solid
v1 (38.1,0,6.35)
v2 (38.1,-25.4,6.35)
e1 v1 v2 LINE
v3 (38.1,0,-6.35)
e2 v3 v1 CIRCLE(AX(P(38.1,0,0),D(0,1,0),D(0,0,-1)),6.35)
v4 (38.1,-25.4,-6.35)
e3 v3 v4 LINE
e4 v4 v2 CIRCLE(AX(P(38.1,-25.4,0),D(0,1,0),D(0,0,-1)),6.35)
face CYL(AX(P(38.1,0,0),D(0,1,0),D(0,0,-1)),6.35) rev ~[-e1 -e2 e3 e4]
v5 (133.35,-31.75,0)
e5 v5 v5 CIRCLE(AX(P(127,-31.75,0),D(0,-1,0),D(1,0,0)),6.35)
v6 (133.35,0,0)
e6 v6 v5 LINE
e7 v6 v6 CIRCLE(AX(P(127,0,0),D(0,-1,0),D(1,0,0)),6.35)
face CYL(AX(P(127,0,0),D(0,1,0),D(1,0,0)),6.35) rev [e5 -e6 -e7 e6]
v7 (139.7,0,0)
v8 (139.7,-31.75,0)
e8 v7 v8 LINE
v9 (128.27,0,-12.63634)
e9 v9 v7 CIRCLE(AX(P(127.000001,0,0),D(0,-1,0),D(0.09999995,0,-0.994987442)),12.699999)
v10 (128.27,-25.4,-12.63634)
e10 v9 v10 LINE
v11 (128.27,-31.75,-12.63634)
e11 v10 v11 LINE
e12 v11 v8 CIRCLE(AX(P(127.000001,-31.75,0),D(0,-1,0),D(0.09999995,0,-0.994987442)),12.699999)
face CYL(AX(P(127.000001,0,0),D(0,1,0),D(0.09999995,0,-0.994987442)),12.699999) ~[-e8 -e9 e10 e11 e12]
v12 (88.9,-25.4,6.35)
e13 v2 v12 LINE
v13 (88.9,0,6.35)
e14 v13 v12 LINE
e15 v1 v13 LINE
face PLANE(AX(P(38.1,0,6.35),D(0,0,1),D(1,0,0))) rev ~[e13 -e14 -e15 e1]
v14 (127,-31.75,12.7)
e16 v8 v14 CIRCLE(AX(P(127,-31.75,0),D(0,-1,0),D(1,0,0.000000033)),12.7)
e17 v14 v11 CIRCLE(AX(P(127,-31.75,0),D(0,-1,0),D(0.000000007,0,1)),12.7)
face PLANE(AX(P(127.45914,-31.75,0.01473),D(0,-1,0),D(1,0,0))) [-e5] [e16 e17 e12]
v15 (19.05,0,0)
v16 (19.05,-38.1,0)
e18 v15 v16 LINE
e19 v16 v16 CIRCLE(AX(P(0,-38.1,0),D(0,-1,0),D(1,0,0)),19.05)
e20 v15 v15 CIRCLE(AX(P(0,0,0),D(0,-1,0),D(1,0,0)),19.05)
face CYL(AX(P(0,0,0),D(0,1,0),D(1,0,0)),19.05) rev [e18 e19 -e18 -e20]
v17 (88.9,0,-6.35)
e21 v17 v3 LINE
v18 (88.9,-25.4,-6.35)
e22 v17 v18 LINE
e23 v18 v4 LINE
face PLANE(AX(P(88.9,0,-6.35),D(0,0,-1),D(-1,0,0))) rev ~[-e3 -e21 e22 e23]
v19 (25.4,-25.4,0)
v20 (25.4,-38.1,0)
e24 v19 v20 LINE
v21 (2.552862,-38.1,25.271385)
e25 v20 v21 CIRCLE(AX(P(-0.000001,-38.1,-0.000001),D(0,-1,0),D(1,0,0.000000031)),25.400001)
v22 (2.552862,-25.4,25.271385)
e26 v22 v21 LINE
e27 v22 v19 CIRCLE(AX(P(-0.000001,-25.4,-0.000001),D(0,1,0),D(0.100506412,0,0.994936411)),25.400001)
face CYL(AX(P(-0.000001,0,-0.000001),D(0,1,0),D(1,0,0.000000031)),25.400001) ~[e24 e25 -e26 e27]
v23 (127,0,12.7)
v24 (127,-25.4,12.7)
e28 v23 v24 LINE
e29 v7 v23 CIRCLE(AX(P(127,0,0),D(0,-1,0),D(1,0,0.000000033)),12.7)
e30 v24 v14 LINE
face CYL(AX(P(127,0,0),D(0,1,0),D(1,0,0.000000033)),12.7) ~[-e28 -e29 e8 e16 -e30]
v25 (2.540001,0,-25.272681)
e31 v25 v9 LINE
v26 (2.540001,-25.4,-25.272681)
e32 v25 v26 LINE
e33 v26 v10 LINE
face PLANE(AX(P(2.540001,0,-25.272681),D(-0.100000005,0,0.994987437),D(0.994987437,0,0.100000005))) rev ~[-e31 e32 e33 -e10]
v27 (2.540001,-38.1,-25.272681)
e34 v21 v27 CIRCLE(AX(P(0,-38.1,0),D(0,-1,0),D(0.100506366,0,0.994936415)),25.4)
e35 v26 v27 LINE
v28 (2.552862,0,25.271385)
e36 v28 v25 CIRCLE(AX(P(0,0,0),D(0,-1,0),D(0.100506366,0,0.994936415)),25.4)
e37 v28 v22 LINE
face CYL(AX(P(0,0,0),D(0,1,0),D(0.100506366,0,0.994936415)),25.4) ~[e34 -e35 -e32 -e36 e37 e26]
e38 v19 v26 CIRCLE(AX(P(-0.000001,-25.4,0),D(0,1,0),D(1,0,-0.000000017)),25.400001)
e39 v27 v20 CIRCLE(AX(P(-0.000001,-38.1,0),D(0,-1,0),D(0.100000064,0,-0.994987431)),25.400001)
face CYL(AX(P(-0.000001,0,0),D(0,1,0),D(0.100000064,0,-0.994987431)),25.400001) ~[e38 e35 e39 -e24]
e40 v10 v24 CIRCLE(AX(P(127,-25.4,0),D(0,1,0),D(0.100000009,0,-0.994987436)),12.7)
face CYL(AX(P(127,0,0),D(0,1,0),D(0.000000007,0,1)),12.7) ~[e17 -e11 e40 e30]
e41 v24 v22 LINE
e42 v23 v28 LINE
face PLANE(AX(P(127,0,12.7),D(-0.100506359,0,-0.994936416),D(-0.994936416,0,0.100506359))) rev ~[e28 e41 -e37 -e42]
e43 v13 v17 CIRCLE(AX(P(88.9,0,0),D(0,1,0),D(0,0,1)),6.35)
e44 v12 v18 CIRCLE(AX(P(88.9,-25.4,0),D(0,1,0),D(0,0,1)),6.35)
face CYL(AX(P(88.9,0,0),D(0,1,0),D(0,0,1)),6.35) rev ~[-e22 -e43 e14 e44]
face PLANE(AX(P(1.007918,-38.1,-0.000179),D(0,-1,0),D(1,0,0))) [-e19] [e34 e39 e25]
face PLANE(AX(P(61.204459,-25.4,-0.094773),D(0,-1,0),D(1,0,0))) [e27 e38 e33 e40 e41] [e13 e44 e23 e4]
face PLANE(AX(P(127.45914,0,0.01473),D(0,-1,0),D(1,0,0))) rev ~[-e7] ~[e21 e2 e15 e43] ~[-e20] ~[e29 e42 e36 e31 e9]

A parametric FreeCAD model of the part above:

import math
import FreeCAD as App
import Part
import Sketcher

V = App.Vector
Q = App.Units.Quantity

doc = App.newDocument("Part")
body = doc.addObject("PartDesign::Body", "Body")

# Sketch on XZ plane
sketch1 = body.newObject("Sketcher::SketchObject", "Sketch")
sketch1.AttachmentSupport = (doc.getObject("XZ_Plane"), [""])
sketch1.MapMode = "FlatFace"
sketch1.addGeometry(Part.ArcOfCircle(Part.Circle(V(0, 0, 0), V(0, 0, 1), 25), math.radians(-84), math.radians(0)), False)
sketch1.addGeometry(Part.ArcOfCircle(Part.Circle(V(0, 0, 0), V(0, 0, 1), 25), math.radians(0), math.radians(84)), False)
sketch1.addGeometry(Part.ArcOfCircle(Part.Circle(V(0, 0, 0), V(0, 0, 1), 25), math.radians(84), math.radians(276)), False)
sketch1.addGeometry(Part.Circle(V(0, 0, 0), V(0, 0, 1), 19), False)
sketch1.addConstraint(Sketcher.Constraint("Tangent", 0, 2, 1, 1))
sketch1.addConstraint(Sketcher.Constraint("Tangent", 1, 2, 2, 1))
sketch1.addConstraint(Sketcher.Constraint("Tangent", 2, 2, 0, 1))
sketch1.addConstraint(Sketcher.Constraint("Coincident", 0, 3, -1, 1))
sketch1.addConstraint(Sketcher.Constraint("Coincident", 3, 3, -1, 1))
sketch1.addConstraint(Sketcher.Constraint("PointOnObject", 0, 2, -1))
sketch1.addConstraint(Sketcher.Constraint("Radius", 0, Q("1 in")))
sketch1.addConstraint(Sketcher.Constraint("Diameter", 3, Q("1.5 in")))
sketch1.addConstraint(Sketcher.Constraint("DistanceX", -1, 1, 2, 2, Q("0.1 in")))
sketch1.addConstraint(Sketcher.Constraint("DistanceX", -1, 1, 1, 2, 2.552862))
pad1 = body.newObject("PartDesign::Pad", "Pad")
pad1.Profile = sketch1
pad1.Length = Q("1.5 in")

# Sketch on XZ plane
sketch2 = body.newObject("Sketcher::SketchObject", "Sketch001")
sketch2.AttachmentSupport = (doc.getObject("XZ_Plane"), [""])
sketch2.MapMode = "FlatFace"
sketch2.addGeometry(Part.ArcOfCircle(Part.Circle(V(0, 0, 0), V(0, 0, 1), 25), math.radians(0), math.radians(84)), False)
sketch2.addGeometry(Part.ArcOfCircle(Part.Circle(V(0, 0, 0), V(0, 0, 1), 25), math.radians(-84), math.radians(0)), False)
sketch2.addGeometry(Part.LineSegment(V(3, -25, 0), V(128, -13, 0)), False)
sketch2.addGeometry(Part.ArcOfCircle(Part.Circle(V(127, 0, 0), V(0, 0, 1), 13), math.radians(90), math.radians(276)), False)
sketch2.addGeometry(Part.LineSegment(V(127, 13, 0), V(3, 25, 0)), False)
sketch2.addGeometry(Part.LineSegment(V(89, -6, 0), V(38, -6, 0)), False)
sketch2.addGeometry(Part.ArcOfCircle(Part.Circle(V(38, 0, 0), V(0, 0, 1), 6), math.radians(90), math.radians(270)), False)
sketch2.addGeometry(Part.LineSegment(V(38, 6, 0), V(89, 6, 0)), False)
sketch2.addGeometry(Part.ArcOfCircle(Part.Circle(V(89, 0, 0), V(0, 0, 1), 6), math.radians(-90), math.radians(90)), False)
sketch2.addConstraint(Sketcher.Constraint("Tangent", 0, 1, 1, 2))
sketch2.addConstraint(Sketcher.Constraint("Tangent", 1, 1, 2, 1))
sketch2.addConstraint(Sketcher.Constraint("Tangent", 2, 2, 3, 2))
sketch2.addConstraint(Sketcher.Constraint("Coincident", 3, 1, 4, 1))
sketch2.addConstraint(Sketcher.Constraint("Tangent", 4, 2, 0, 2))
sketch2.addConstraint(Sketcher.Constraint("Tangent", 5, 2, 6, 2))
sketch2.addConstraint(Sketcher.Constraint("Tangent", 6, 1, 7, 1))
sketch2.addConstraint(Sketcher.Constraint("Tangent", 7, 2, 8, 2))
sketch2.addConstraint(Sketcher.Constraint("Tangent", 8, 1, 5, 1))
sketch2.addConstraint(Sketcher.Constraint("Horizontal", 5))
sketch2.addConstraint(Sketcher.Constraint("Horizontal", 7))
sketch2.addConstraint(Sketcher.Constraint("Coincident", 0, 3, -1, 1))
sketch2.addConstraint(Sketcher.Constraint("Equal", 0, 1))
sketch2.addConstraint(Sketcher.Constraint("PointOnObject", 3, 3, -1))
sketch2.addConstraint(Sketcher.Constraint("PointOnObject", 6, 3, -1))
sketch2.addConstraint(Sketcher.Constraint("PointOnObject", 0, 1, -1))
sketch2.addConstraint(Sketcher.Constraint("Radius", 0, Q("1 in")))
sketch2.addConstraint(Sketcher.Constraint("Radius", 3, Q("0.5 in")))
sketch2.addConstraint(Sketcher.Constraint("DistanceX", 5, 2, 5, 1, Q("2 in")))
sketch2.addConstraint(Sketcher.Constraint("Radius", 6, Q("0.25 in")))
sketch2.addConstraint(Sketcher.Constraint("DistanceX", -1, 1, 3, 3, Q("5 in")))
sketch2.addConstraint(Sketcher.Constraint("DistanceX", -1, 1, 3, 1, Q("5 in")))
sketch2.addConstraint(Sketcher.Constraint("DistanceX", -1, 1, 6, 3, Q("1.5 in")))
pad2 = body.newObject("PartDesign::Pad", "Pad001")
pad2.Profile = sketch2
pad2.Length = Q("1 in")

# Sketch on XZ plane
sketch3 = body.newObject("Sketcher::SketchObject", "Sketch002")
sketch3.AttachmentSupport = (doc.getObject("XZ_Plane"), [""])
sketch3.MapMode = "FlatFace"
sketch3.addGeometry(Part.ArcOfCircle(Part.Circle(V(127, 0, 0), V(0, 0, 1), 13), math.radians(0), math.radians(90)), False)
sketch3.addGeometry(Part.ArcOfCircle(Part.Circle(V(127, 0, 0), V(0, 0, 1), 13), math.radians(90), math.radians(276)), False)
sketch3.addGeometry(Part.ArcOfCircle(Part.Circle(V(127, 0, 0), V(0, 0, 1), 13), math.radians(-84), math.radians(0)), False)
sketch3.addGeometry(Part.Circle(V(127, 0, 0), V(0, 0, 1), 6), False)
sketch3.addConstraint(Sketcher.Constraint("Tangent", 0, 2, 1, 1))
sketch3.addConstraint(Sketcher.Constraint("Tangent", 1, 2, 2, 1))
sketch3.addConstraint(Sketcher.Constraint("Tangent", 2, 2, 0, 1))
sketch3.addConstraint(Sketcher.Constraint("Coincident", 3, 3, 0, 3))
sketch3.addConstraint(Sketcher.Constraint("PointOnObject", 0, 3, -1))
sketch3.addConstraint(Sketcher.Constraint("PointOnObject", 2, 2, -1))
sketch3.addConstraint(Sketcher.Constraint("Vertical", 3, 3, 0, 2))
sketch3.addConstraint(Sketcher.Constraint("Diameter", 3, Q("0.5 in")))
sketch3.addConstraint(Sketcher.Constraint("Radius", 0, Q("0.5 in")))
sketch3.addConstraint(Sketcher.Constraint("DistanceX", -1, 1, 0, 3, Q("5 in")))
sketch3.addConstraint(Sketcher.Constraint("DistanceX", -1, 1, 1, 2, Q("5.05 in")))
pad3 = body.newObject("PartDesign::Pad", "Pad002")
pad3.Profile = sketch3
pad3.Length = Q("1.25 in")

doc.recompute()
